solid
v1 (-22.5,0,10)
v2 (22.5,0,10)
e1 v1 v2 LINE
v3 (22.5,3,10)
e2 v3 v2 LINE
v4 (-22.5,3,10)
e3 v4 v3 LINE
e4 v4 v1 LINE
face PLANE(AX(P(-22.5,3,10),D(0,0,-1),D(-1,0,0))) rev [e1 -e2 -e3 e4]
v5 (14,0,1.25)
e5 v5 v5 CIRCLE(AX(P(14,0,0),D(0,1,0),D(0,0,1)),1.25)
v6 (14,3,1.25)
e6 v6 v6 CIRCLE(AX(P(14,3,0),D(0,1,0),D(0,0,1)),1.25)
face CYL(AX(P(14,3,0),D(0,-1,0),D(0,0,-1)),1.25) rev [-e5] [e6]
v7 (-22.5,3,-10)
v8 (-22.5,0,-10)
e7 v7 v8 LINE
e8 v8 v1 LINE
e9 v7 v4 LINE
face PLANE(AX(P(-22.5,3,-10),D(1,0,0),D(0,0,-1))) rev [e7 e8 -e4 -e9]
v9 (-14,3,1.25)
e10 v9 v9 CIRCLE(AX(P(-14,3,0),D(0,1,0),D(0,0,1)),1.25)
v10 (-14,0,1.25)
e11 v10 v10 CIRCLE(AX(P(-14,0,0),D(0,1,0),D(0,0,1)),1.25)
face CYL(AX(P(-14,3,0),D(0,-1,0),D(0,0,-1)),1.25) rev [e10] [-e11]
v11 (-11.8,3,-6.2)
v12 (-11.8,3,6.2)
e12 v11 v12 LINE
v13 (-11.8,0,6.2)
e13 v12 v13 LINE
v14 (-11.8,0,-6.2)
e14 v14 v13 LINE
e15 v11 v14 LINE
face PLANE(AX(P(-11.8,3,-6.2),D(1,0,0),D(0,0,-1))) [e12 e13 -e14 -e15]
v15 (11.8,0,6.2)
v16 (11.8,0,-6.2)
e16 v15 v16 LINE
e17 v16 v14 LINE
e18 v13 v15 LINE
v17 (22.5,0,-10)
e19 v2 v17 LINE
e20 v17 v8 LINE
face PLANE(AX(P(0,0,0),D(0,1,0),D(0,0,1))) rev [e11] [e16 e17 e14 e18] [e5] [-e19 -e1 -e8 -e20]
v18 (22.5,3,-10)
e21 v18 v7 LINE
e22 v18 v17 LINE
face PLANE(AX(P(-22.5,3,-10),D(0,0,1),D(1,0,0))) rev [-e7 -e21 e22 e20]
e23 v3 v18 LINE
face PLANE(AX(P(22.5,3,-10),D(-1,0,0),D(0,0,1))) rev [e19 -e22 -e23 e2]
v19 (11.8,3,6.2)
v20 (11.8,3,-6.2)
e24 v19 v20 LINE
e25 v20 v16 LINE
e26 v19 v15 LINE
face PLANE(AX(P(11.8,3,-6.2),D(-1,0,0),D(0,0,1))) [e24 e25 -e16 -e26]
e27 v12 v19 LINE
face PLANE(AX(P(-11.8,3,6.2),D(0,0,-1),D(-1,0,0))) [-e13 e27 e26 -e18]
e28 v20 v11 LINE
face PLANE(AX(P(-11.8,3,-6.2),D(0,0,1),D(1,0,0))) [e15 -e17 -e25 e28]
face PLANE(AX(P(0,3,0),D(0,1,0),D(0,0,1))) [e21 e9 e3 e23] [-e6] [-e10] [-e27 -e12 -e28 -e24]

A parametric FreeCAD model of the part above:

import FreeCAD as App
import Part
import Sketcher


def add_polygon(sketch, points):
    """Adds a closed chain of lines whose ends are joined by coincident constraints."""
    first, n = sketch.GeometryCount, len(points)
    for a, b in zip(points, points[1:] + points[:1]):
        sketch.addGeometry(Part.LineSegment(App.Vector(*a, 0), App.Vector(*b, 0)), False)
    for i in range(n):
        sketch.addConstraint(Sketcher.Constraint("Coincident", first + i, 2, first + (i + 1) % n, 1))

doc = App.newDocument("Part")
body = doc.addObject("PartDesign::Body", "Body")

# Sketch on XZ plane
sketch1 = doc.addObject("Sketcher::SketchObject", "Sketch")
body.addObject(sketch1)
sketch1.AttachmentSupport = (doc.XZ_Plane, [""])
sketch1.MapMode = "FlatFace"
add_polygon(sketch1, [(-22.5, -10), (-22.5, 10), (22.5, 10), (22.5, -10)])  # lines 0-3
sketch1.addGeometry(Part.Circle(App.Vector(-14, 0, 0), App.Vector(0, 0, 1), 1.25), False)  # 4
add_polygon(sketch1, [(11.8, 6.2), (-11.8, 6.2), (-11.8, -6.2), (11.8, -6.2)])  # lines 5-8
sketch1.addGeometry(Part.Circle(App.Vector(14, 0, 0), App.Vector(0, 0, 1), 1.25), False)  # 9
sketch1.addConstraint([
    Sketcher.Constraint("Vertical", 0),
    Sketcher.Constraint("Horizontal", 1),
    Sketcher.Constraint("Vertical", 2),
    Sketcher.Constraint("Horizontal", 3),
    Sketcher.Constraint("Horizontal", 5),
    Sketcher.Constraint("Vertical", 6),
    Sketcher.Constraint("Horizontal", 7),
    Sketcher.Constraint("Vertical", 8),
    Sketcher.Constraint("Equal", 4, 9),
    Sketcher.Constraint("Symmetric", 4, 3, 9, 3, -1, 1),
    Sketcher.Constraint("Symmetric", 0, 2, 2, 2, -1, 1),
    Sketcher.Constraint("Symmetric", 5, 2, 7, 2, -1, 1),
    Sketcher.Constraint("PointOnObject", 4, 3, -1),
    Sketcher.Constraint("Diameter", 4, 2.5),
    Sketcher.Constraint("DistanceX", 1, 1, 1, 2, 45.0),
    Sketcher.Constraint("DistanceY", 0, 1, 0, 2, 20.0),
    Sketcher.Constraint("DistanceX", 5, 2, 5, 1, 23.6),
    Sketcher.Constraint("DistanceY", 6, 2, 6, 1, 12.4),
    Sketcher.Constraint("DistanceX", 4, 3, -1, 1, 14.0),
])
pad1 = doc.addObject("PartDesign::Pad", "Pad")
body.addObject(pad1)
pad1.Profile = sketch1
pad1.Length = 3
pad1.Reversed = True

doc.recompute()
